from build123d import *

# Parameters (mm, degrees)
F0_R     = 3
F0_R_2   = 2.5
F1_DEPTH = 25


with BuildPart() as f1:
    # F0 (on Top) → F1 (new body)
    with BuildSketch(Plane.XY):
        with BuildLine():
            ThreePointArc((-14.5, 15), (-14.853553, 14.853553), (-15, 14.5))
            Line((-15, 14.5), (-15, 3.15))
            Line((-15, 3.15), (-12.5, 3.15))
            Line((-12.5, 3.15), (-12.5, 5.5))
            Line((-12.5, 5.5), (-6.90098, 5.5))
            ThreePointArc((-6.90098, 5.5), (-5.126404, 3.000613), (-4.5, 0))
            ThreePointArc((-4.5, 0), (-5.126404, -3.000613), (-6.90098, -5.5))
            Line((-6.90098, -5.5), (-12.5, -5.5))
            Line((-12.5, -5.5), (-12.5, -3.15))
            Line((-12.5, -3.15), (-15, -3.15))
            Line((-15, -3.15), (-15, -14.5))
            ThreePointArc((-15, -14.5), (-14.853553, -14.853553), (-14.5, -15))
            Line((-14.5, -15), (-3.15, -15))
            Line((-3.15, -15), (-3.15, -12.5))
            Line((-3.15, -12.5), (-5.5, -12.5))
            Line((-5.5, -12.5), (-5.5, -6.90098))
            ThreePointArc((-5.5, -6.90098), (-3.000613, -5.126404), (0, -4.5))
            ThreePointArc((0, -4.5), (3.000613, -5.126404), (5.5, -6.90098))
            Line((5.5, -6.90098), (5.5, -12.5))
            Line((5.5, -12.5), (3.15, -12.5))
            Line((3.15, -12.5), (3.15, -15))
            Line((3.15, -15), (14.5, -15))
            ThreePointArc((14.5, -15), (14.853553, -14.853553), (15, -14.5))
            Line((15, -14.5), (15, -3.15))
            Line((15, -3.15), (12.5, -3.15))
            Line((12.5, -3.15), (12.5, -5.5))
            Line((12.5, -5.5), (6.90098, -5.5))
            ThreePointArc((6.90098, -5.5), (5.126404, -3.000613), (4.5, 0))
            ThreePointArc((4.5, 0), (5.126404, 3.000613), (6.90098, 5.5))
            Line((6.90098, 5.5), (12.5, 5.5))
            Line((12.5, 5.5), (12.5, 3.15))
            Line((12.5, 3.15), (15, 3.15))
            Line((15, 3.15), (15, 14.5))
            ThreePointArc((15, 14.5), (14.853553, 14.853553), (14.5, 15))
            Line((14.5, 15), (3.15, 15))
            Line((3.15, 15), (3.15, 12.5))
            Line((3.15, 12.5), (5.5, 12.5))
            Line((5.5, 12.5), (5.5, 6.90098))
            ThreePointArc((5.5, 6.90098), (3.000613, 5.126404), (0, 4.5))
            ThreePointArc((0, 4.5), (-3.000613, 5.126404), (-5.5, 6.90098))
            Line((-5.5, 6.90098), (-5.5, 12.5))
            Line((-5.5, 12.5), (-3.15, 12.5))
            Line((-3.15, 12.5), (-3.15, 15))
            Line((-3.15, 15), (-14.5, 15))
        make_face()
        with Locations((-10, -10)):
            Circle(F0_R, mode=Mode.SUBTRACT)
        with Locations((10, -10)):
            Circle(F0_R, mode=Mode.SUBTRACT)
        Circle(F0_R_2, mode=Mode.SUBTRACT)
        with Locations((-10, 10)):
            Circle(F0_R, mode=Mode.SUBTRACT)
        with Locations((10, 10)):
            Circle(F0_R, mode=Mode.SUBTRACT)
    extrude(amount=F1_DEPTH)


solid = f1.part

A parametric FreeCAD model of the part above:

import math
import FreeCAD as App
import Part
import Sketcher
Q = App.Units.Quantity

doc = App.newDocument("Part")
body = doc.addObject("PartDesign::Body", "Body")

# Sketch on XY plane
sketch1 = doc.addObject("Sketcher::SketchObject", "Sketch")
body.addObject(sketch1)
sketch1.AttachmentSupport = (doc.XY_Plane, [""])
sketch1.MapMode = "FlatFace"
sketch1.addGeometry(Part.ArcOfCircle(Part.Circle(App.Vector(-14.5, 14.5, 0), App.Vector(0, 0, 1), 0.5), math.radians(90), math.radians(180)), False)
sketch1.addGeometry(Part.LineSegment(App.Vector(-15, 14.5, 0), App.Vector(-15, 3.1, 0)), False)
sketch1.addGeometry(Part.LineSegment(App.Vector(-15, 3.1, 0), App.Vector(-12.5, 3.1, 0)), False)
sketch1.addGeometry(Part.LineSegment(App.Vector(-12.5, 3.1, 0), App.Vector(-12.5, 5.5, 0)), False)
sketch1.addGeometry(Part.LineSegment(App.Vector(-12.5, 5.5, 0), App.Vector(-6.9, 5.5, 0)), False)
sketch1.addGeometry(Part.ArcOfCircle(Part.Circle(App.Vector(-12, 0, 0), App.Vector(0, 0, 1), 7.5), math.radians(0), math.radians(47)), False)
sketch1.addGeometry(Part.ArcOfCircle(Part.Circle(App.Vector(-12, 0, 0), App.Vector(0, 0, 1), 7.5), math.radians(-47), math.radians(0)), False)
sketch1.addGeometry(Part.LineSegment(App.Vector(-6.9, -5.5, 0), App.Vector(-12.5, -5.5, 0)), False)
sketch1.addGeometry(Part.LineSegment(App.Vector(-12.5, -5.5, 0), App.Vector(-12.5, -3.1, 0)), False)
sketch1.addGeometry(Part.LineSegment(App.Vector(-12.5, -3.1, 0), App.Vector(-15, -3.1, 0)), False)
sketch1.addGeometry(Part.LineSegment(App.Vector(-15, -3.1, 0), App.Vector(-15, -14.5, 0)), False)
sketch1.addGeometry(Part.ArcOfCircle(Part.Circle(App.Vector(-14.5, -14.5, 0), App.Vector(0, 0, 1), 0.5), math.radians(-180), math.radians(-90)), False)
sketch1.addGeometry(Part.LineSegment(App.Vector(-14.5, -15, 0), App.Vector(-3.1, -15, 0)), False)
sketch1.addGeometry(Part.LineSegment(App.Vector(-3.1, -15, 0), App.Vector(-3.1, -12.5, 0)), False)
sketch1.addGeometry(Part.LineSegment(App.Vector(-3.1, -12.5, 0), App.Vector(-5.5, -12.5, 0)), False)
sketch1.addGeometry(Part.LineSegment(App.Vector(-5.5, -12.5, 0), App.Vector(-5.5, -6.9, 0)), False)
sketch1.addGeometry(Part.ArcOfCircle(Part.Circle(App.Vector(0, -12, 0), App.Vector(0, 0, 1), 7.5), math.radians(90), math.radians(137)), False)
sketch1.addGeometry(Part.ArcOfCircle(Part.Circle(App.Vector(0, -12, 0), App.Vector(0, 0, 1), 7.5), math.radians(43), math.radians(90)), False)
sketch1.addGeometry(Part.LineSegment(App.Vector(5.5, -6.9, 0), App.Vector(5.5, -12.5, 0)), False)
sketch1.addGeometry(Part.LineSegment(App.Vector(5.5, -12.5, 0), App.Vector(3.1, -12.5, 0)), False)
sketch1.addGeometry(Part.LineSegment(App.Vector(3.1, -12.5, 0), App.Vector(3.1, -15, 0)), False)
sketch1.addGeometry(Part.LineSegment(App.Vector(3.1, -15, 0), App.Vector(14.5, -15, 0)), False)
sketch1.addGeometry(Part.ArcOfCircle(Part.Circle(App.Vector(14.5, -14.5, 0), App.Vector(0, 0, 1), 0.5), math.radians(-90), math.radians(0)), False)
sketch1.addGeometry(Part.LineSegment(App.Vector(15, -14.5, 0), App.Vector(15, -3.1, 0)), False)
sketch1.addGeometry(Part.LineSegment(App.Vector(15, -3.1, 0), App.Vector(12.5, -3.1, 0)), False)
sketch1.addGeometry(Part.LineSegment(App.Vector(12.5, -3.1, 0), App.Vector(12.5, -5.5, 0)), False)
sketch1.addGeometry(Part.LineSegment(App.Vector(12.5, -5.5, 0), App.Vector(6.9, -5.5, 0)), False)
sketch1.addGeometry(Part.ArcOfCircle(Part.Circle(App.Vector(12, 0, 0), App.Vector(0, 0, 1), 7.5), math.radians(-180), math.radians(-133)), False)
sketch1.addGeometry(Part.ArcOfCircle(Part.Circle(App.Vector(12, 0, 0), App.Vector(0, 0, 1), 7.5), math.radians(133), math.radians(180)), False)
sketch1.addGeometry(Part.LineSegment(App.Vector(6.9, 5.5, 0), App.Vector(12.5, 5.5, 0)), False)
sketch1.addGeometry(Part.LineSegment(App.Vector(12.5, 5.5, 0), App.Vector(12.5, 3.1, 0)), False)
sketch1.addGeometry(Part.LineSegment(App.Vector(12.5, 3.1, 0), App.Vector(15, 3.1, 0)), False)
sketch1.addGeometry(Part.LineSegment(App.Vector(15, 3.1, 0), App.Vector(15, 14.5, 0)), False)
sketch1.addGeometry(Part.ArcOfCircle(Part.Circle(App.Vector(14.5, 14.5, 0), App.Vector(0, 0, 1), 0.5), math.radians(0), math.radians(90)), False)
sketch1.addGeometry(Part.LineSegment(App.Vector(14.5, 15, 0), App.Vector(3.1, 15, 0)), False)
sketch1.addGeometry(Part.LineSegment(App.Vector(3.1, 15, 0), App.Vector(3.1, 12.5, 0)), False)
sketch1.addGeometry(Part.LineSegment(App.Vector(3.1, 12.5, 0), App.Vector(5.5, 12.5, 0)), False)
sketch1.addGeometry(Part.LineSegment(App.Vector(5.5, 12.5, 0), App.Vector(5.5, 6.9, 0)), False)
sketch1.addGeometry(Part.ArcOfCircle(Part.Circle(App.Vector(0, 12, 0), App.Vector(0, 0, 1), 7.5), math.radians(-90), math.radians(-43)), False)
sketch1.addGeometry(Part.ArcOfCircle(Part.Circle(App.Vector(0, 12, 0), App.Vector(0, 0, 1), 7.5), math.radians(-137), math.radians(-90)), False)
sketch1.addGeometry(Part.LineSegment(App.Vector(-5.5, 6.9, 0), App.Vector(-5.5, 12.5, 0)), False)
sketch1.addGeometry(Part.LineSegment(App.Vector(-5.5, 12.5, 0), App.Vector(-3.1, 12.5, 0)), False)
sketch1.addGeometry(Part.LineSegment(App.Vector(-3.1, 12.5, 0), App.Vector(-3.1, 15, 0)), False)
sketch1.addGeometry(Part.LineSegment(App.Vector(-3.1, 15, 0), App.Vector(-14.5, 15, 0)), False)
sketch1.addGeometry(Part.Circle(App.Vector(-10, -10, 0), App.Vector(0, 0, 1), 3), False)
sketch1.addGeometry(Part.Circle(App.Vector(10, -10, 0), App.Vector(0, 0, 1), 3), False)
sketch1.addGeometry(Part.Circle(App.Vector(-10, 10, 0), App.Vector(0, 0, 1), 3), False)
sketch1.addGeometry(Part.Circle(App.Vector(0, 0, 0), App.Vector(0, 0, 1), 2.5), False)
sketch1.addGeometry(Part.Circle(App.Vector(10, 10, 0), App.Vector(0, 0, 1), 3), False)
sketch1.addConstraint(Sketcher.Constraint("Coincident", 0, 2, 1, 1))
sketch1.addConstraint(Sketcher.Constraint("Coincident", 1, 2, 2, 1))
sketch1.addConstraint(Sketcher.Constraint("Coincident", 2, 2, 3, 1))
sketch1.addConstraint(Sketcher.Constraint("Coincident", 3, 2, 4, 1))
sketch1.addConstraint(Sketcher.Constraint("Coincident", 4, 2, 5, 2))
sketch1.addConstraint(Sketcher.Constraint("Tangent", 5, 1, 6, 2))
sketch1.addConstraint(Sketcher.Constraint("Coincident", 6, 1, 7, 1))
sketch1.addConstraint(Sketcher.Constraint("Coincident", 7, 2, 8, 1))
sketch1.addConstraint(Sketcher.Constraint("Coincident", 8, 2, 9, 1))
sketch1.addConstraint(Sketcher.Constraint("Coincident", 9, 2, 10, 1))
sketch1.addConstraint(Sketcher.Constraint("Coincident", 10, 2, 11, 1))
sketch1.addConstraint(Sketcher.Constraint("Coincident", 11, 2, 12, 1))
sketch1.addConstraint(Sketcher.Constraint("Coincident", 12, 2, 13, 1))
sketch1.addConstraint(Sketcher.Constraint("Coincident", 13, 2, 14, 1))
sketch1.addConstraint(Sketcher.Constraint("Coincident", 14, 2, 15, 1))
sketch1.addConstraint(Sketcher.Constraint("Coincident", 15, 2, 16, 2))
sketch1.addConstraint(Sketcher.Constraint("Tangent", 16, 1, 17, 2))
sketch1.addConstraint(Sketcher.Constraint("Coincident", 17, 1, 18, 1))
sketch1.addConstraint(Sketcher.Constraint("Coincident", 18, 2, 19, 1))
sketch1.addConstraint(Sketcher.Constraint("Coincident", 19, 2, 20, 1))
sketch1.addConstraint(Sketcher.Constraint("Coincident", 20, 2, 21, 1))
sketch1.addConstraint(Sketcher.Constraint("Coincident", 21, 2, 22, 1))
sketch1.addConstraint(Sketcher.Constraint("Coincident", 22, 2, 23, 1))
sketch1.addConstraint(Sketcher.Constraint("Coincident", 23, 2, 24, 1))
sketch1.addConstraint(Sketcher.Constraint("Coincident", 24, 2, 25, 1))
sketch1.addConstraint(Sketcher.Constraint("Coincident", 25, 2, 26, 1))
sketch1.addConstraint(Sketcher.Constraint("Coincident", 26, 2, 27, 2))
sketch1.addConstraint(Sketcher.Constraint("Tangent", 27, 1, 28, 2))
sketch1.addConstraint(Sketcher.Constraint("Coincident", 28, 1, 29, 1))
sketch1.addConstraint(Sketcher.Constraint("Coincident", 29, 2, 30, 1))
sketch1.addConstraint(Sketcher.Constraint("Coincident", 30, 2, 31, 1))
sketch1.addConstraint(Sketcher.Constraint("Coincident", 31, 2, 32, 1))
sketch1.addConstraint(Sketcher.Constraint("Coincident", 32, 2, 33, 1))
sketch1.addConstraint(Sketcher.Constraint("Coincident", 33, 2, 34, 1))
sketch1.addConstraint(Sketcher.Constraint("Coincident", 34, 2, 35, 1))
sketch1.addConstraint(Sketcher.Constraint("Coincident", 35, 2, 36, 1))
sketch1.addConstraint(Sketcher.Constraint("Coincident", 36, 2, 37, 1))
sketch1.addConstraint(Sketcher.Constraint("Coincident", 37, 2, 38, 2))
sketch1.addConstraint(Sketcher.Constraint("Tangent", 38, 1, 39, 2))
sketch1.addConstraint(Sketcher.Constraint("Coincident", 39, 1, 40, 1))
sketch1.addConstraint(Sketcher.Constraint("Coincident", 40, 2, 41, 1))
sketch1.addConstraint(Sketcher.Constraint("Coincident", 41, 2, 42, 1))
sketch1.addConstraint(Sketcher.Constraint("Coincident", 42, 2, 43, 1))
sketch1.addConstraint(Sketcher.Constraint("Coincident", 43, 2, 0, 1))
sketch1.addConstraint(Sketcher.Constraint("Vertical", 1))
sketch1.addConstraint(Sketcher.Constraint("Horizontal", 2))
sketch1.addConstraint(Sketcher.Constraint("Vertical", 3))
sketch1.addConstraint(Sketcher.Constraint("Horizontal", 4))
sketch1.addConstraint(Sketcher.Constraint("Horizontal", 7))
sketch1.addConstraint(Sketcher.Constraint("Vertical", 8))
sketch1.addConstraint(Sketcher.Constraint("Horizontal", 9))
sketch1.addConstraint(Sketcher.Constraint("Vertical", 10))
sketch1.addConstraint(Sketcher.Constraint("Horizontal", 12))
sketch1.addConstraint(Sketcher.Constraint("Vertical", 13))
sketch1.addConstraint(Sketcher.Constraint("Horizontal", 14))
sketch1.addConstraint(Sketcher.Constraint("Vertical", 15))
sketch1.addConstraint(Sketcher.Constraint("Vertical", 18))
sketch1.addConstraint(Sketcher.Constraint("Horizontal", 19))
sketch1.addConstraint(Sketcher.Constraint("Vertical", 20))
sketch1.addConstraint(Sketcher.Constraint("Horizontal", 21))
sketch1.addConstraint(Sketcher.Constraint("Vertical", 23))
sketch1.addConstraint(Sketcher.Constraint("Horizontal", 24))
sketch1.addConstraint(Sketcher.Constraint("Vertical", 25))
sketch1.addConstraint(Sketcher.Constraint("Horizontal", 26))
sketch1.addConstraint(Sketcher.Constraint("Horizontal", 29))
sketch1.addConstraint(Sketcher.Constraint("Vertical", 30))
sketch1.addConstraint(Sketcher.Constraint("Horizontal", 31))
sketch1.addConstraint(Sketcher.Constraint("Vertical", 32))
sketch1.addConstraint(Sketcher.Constraint("Horizontal", 34))
sketch1.addConstraint(Sketcher.Constraint("Vertical", 35))
sketch1.addConstraint(Sketcher.Constraint("Horizontal", 36))
sketch1.addConstraint(Sketcher.Constraint("Vertical", 37))
sketch1.addConstraint(Sketcher.Constraint("Vertical", 40))
sketch1.addConstraint(Sketcher.Constraint("Horizontal", 41))
sketch1.addConstraint(Sketcher.Constraint("Vertical", 42))
sketch1.addConstraint(Sketcher.Constraint("Horizontal", 43))
sketch1.addConstraint(Sketcher.Constraint("Coincident", 47, 3, -1, 1))
sketch1.addConstraint(Sketcher.Constraint("Equal", 5, 6))
sketch1.addConstraint(Sketcher.Constraint("Equal", 0, 11))
sketch1.addConstraint(Sketcher.Constraint("Equal", 6, 16))
sketch1.addConstraint(Sketcher.Constraint("Equal", 16, 17))
sketch1.addConstraint(Sketcher.Constraint("Equal", 11, 22))
sketch1.addConstraint(Sketcher.Constraint("Equal", 17, 27))
sketch1.addConstraint(Sketcher.Constraint("Equal", 27, 28))
sketch1.addConstraint(Sketcher.Constraint("Equal", 22, 33))
sketch1.addConstraint(Sketcher.Constraint("Equal", 28, 38))
sketch1.addConstraint(Sketcher.Constraint("Equal", 38, 39))
sketch1.addConstraint(Sketcher.Constraint("Equal", 44, 45))
sketch1.addConstraint(Sketcher.Constraint("Equal", 45, 46))
sketch1.addConstraint(Sketcher.Constraint("Equal", 46, 48))
sketch1.addConstraint(Sketcher.Constraint("Symmetric", 0, 3, 22, 3, -1, 1))
sketch1.addConstraint(Sketcher.Constraint("Symmetric", 5, 3, 27, 3, -1, 1))
sketch1.addConstraint(Sketcher.Constraint("Symmetric", 11, 3, 33, 3, -1, 1))
sketch1.addConstraint(Sketcher.Constraint("Symmetric", 16, 3, 38, 3, -1, 1))
sketch1.addConstraint(Sketcher.Constraint("Symmetric", 45, 3, 46, 3, -1, 1))
sketch1.addConstraint(Sketcher.Constraint("Symmetric", 44, 3, 48, 3, -1, 1))
sketch1.addConstraint(Sketcher.Constraint("Symmetric", 2, 2, 24, 2, -1, 1))
sketch1.addConstraint(Sketcher.Constraint("Symmetric", 7, 2, 29, 2, -1, 1))
sketch1.addConstraint(Sketcher.Constraint("Symmetric", 13, 2, 35, 2, -1, 1))
sketch1.addConstraint(Sketcher.Constraint("Symmetric", 18, 2, 40, 2, -1, 1))
sketch1.addConstraint(Sketcher.Constraint("Symmetric", 11, 3, 22, 3, -2))
sketch1.addConstraint(Sketcher.Constraint("Symmetric", 44, 3, 45, 3, -2))
sketch1.addConstraint(Sketcher.Constraint("Symmetric", 15, 2, 17, 1, -2))
sketch1.addConstraint(Sketcher.Constraint("Symmetric", 13, 2, 19, 2, -2))
sketch1.addConstraint(Sketcher.Constraint("Symmetric", 8, 2, 24, 2, -2))
sketch1.addConstraint(Sketcher.Constraint("Symmetric", 6, 1, 26, 2, -2))
sketch1.addConstraint(Sketcher.Constraint("PointOnObject", 5, 1, -1))
sketch1.addConstraint(Sketcher.Constraint("PointOnObject", 16, 1, -2))
sketch1.addConstraint(Sketcher.Constraint("PointOnObject", 27, 1, -1))
sketch1.addConstraint(Sketcher.Constraint("PointOnObject", 38, 1, -2))
sketch1.addConstraint(Sketcher.Constraint("Horizontal", 33, 3, 0, 2))
sketch1.addConstraint(Sketcher.Constraint("Horizontal", 22, 3, 10, 2))
sketch1.addConstraint(Sketcher.Constraint("Horizontal", 10, 2, 22, 2))
sketch1.addConstraint(Sketcher.Constraint("Horizontal", 4, 2, 28, 1))
sketch1.addConstraint(Sketcher.Constraint("Horizontal", 2, 2, 30, 2))
sketch1.addConstraint(Sketcher.Constraint("Horizontal", 0, 2, 32, 2))
sketch1.addConstraint(Sketcher.Constraint("Horizontal", 37, 2, 39, 1))
sketch1.addConstraint(Sketcher.Constraint("Vertical", 0, 3, 11, 2))
sketch1.addConstraint(Sketcher.Constraint("Vertical", 33, 3, 21, 2))
sketch1.addConstraint(Sketcher.Constraint("Vertical", 21, 2, 33, 2))
sketch1.addConstraint(Sketcher.Constraint("Vertical", 13, 2, 41, 2))
sketch1.addConstraint(Sketcher.Constraint("Vertical", 11, 2, 43, 2))
sketch1.addConstraint(Sketcher.Constraint("Equal", 43, 1))
sketch1.addConstraint(Sketcher.Constraint("Equal", 41, 3))
sketch1.addConstraint(Sketcher.Constraint("Equal", 31, 13))
sketch1.addConstraint(Sketcher.Constraint("Equal", 29, 15))
sketch1.addConstraint(Sketcher.Constraint("Diameter", 44, Q("6 mm")))
sketch1.addConstraint(Sketcher.Constraint("Diameter", 47, Q("5 mm")))
sketch1.addConstraint(Sketcher.Constraint("Radius", 0, Q("0.500001 mm")))
sketch1.addConstraint(Sketcher.Constraint("Radius", 5, Q("7.500002 mm")))
sketch1.addConstraint(Sketcher.Constraint("DistanceX", 2, 1, 2, 2, Q("2.5 mm")))
sketch1.addConstraint(Sketcher.Constraint("DistanceX", 5, 3, -1, 1, Q("12.000002 mm")))
sketch1.addConstraint(Sketcher.Constraint("DistanceY", 16, 3, -1, 1, Q("12.000002 mm")))
sketch1.addConstraint(Sketcher.Constraint("DistanceX", 44, 3, -1, 1, Q("10 mm")))
sketch1.addConstraint(Sketcher.Constraint("DistanceY", 44, 3, -1, 1, Q("10 mm")))
sketch1.addConstraint(Sketcher.Constraint("DistanceX", 0, 2, -1, 1, Q("15 mm")))
sketch1.addConstraint(Sketcher.Constraint("DistanceX", 12, 1, 12, 2, Q("11.35 mm")))
sketch1.addConstraint(Sketcher.Constraint("DistanceX", 14, 2, 14, 1, Q("2.35 mm")))
pad1 = doc.addObject("PartDesign::Pad", "Pad")
body.addObject(pad1)
pad1.Profile = sketch1
pad1.Length = 25

doc.recompute()
